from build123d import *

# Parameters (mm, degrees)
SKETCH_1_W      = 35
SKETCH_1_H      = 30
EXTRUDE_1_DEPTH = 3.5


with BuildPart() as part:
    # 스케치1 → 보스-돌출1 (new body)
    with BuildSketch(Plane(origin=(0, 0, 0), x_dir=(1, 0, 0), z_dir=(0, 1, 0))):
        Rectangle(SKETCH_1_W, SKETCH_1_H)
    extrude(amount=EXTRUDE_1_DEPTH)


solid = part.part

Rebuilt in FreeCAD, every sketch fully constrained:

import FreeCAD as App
import Part
import Sketcher
from FreeCAD import Vector


def add_polygon(sketch, points):
    """Adds a closed chain of lines whose ends are joined by coincident constraints."""
    first, n = sketch.GeometryCount, len(points)
    for a, b in zip(points, points[1:] + points[:1]):
        sketch.addGeometry(Part.LineSegment(App.Vector(*a, 0), App.Vector(*b, 0)), False)
    for i in range(n):
        sketch.addConstraint(Sketcher.Constraint("Coincident", first + i, 2, first + (i + 1) % n, 1))

doc = App.newDocument("Part")
body = doc.addObject("PartDesign::Body", "Body")

sketch1 = body.newObject("Sketcher::SketchObject", "Sketch")
sketch1.AttachmentSupport = (doc.getObject("XZ_Plane"), [""])
sketch1.MapMode = "FlatFace"
add_polygon(sketch1, [(-18, -15), (-18, 15), (18, 15), (18, -15)])
sketch1.addConstraint([
    Sketcher.Constraint("Vertical", 0),
    Sketcher.Constraint("Horizontal", 1),
    Sketcher.Constraint("Vertical", 2),
    Sketcher.Constraint("Horizontal", 3),
    Sketcher.Constraint("Symmetric", 0, 2, 2, 2, -1, 1),
    Sketcher.Constraint("DistanceX", 1, 1, 1, 2, 35.0),
    Sketcher.Constraint("DistanceY", 0, 1, 0, 2, 30.0),
])
pad1 = body.newObject("PartDesign::Pad", "Pad")
pad1.Profile = sketch1
pad1.Length = 3.5
pad1.Reversed = True

doc.recompute()
